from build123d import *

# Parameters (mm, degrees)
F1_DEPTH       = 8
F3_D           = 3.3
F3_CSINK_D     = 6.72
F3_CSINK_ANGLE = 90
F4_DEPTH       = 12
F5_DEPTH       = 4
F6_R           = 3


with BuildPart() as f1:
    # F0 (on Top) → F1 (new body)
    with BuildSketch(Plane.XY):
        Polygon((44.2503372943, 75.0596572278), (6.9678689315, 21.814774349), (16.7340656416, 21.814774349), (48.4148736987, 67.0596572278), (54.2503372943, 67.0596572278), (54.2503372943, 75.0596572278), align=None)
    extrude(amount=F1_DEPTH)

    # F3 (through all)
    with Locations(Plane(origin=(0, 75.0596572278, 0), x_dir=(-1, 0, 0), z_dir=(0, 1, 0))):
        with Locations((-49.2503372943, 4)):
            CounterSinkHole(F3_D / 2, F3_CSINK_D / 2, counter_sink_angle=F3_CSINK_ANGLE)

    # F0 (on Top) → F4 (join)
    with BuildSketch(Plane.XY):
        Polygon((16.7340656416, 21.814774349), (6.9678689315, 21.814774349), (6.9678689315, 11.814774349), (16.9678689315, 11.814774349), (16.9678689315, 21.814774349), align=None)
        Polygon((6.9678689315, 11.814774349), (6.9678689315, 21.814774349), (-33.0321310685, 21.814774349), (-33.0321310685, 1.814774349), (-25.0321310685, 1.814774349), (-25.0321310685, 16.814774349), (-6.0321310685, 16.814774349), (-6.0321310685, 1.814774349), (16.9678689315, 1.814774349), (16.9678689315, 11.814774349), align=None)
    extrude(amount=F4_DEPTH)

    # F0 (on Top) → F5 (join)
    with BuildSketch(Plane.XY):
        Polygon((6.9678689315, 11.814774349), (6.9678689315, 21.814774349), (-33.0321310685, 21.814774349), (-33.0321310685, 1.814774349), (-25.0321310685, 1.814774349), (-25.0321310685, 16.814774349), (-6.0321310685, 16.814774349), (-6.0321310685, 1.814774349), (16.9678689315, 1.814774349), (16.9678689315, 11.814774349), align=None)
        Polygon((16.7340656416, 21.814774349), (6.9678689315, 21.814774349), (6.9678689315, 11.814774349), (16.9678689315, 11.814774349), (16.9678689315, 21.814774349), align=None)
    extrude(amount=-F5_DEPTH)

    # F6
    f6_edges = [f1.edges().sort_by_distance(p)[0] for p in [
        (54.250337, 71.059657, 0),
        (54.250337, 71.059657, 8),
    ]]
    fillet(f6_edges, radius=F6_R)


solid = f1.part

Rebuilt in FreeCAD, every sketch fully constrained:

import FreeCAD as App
import Part
import Sketcher
from FreeCAD import Vector
Q = App.Units.Quantity


def edges_at(feature, points):
    """Names of the edges that pass closest to the given points."""
    edges = feature.Shape.Edges
    near = lambda p: min(range(len(edges)), key=lambda i: edges[i].distToShape(Part.Vertex(*p))[0])
    return sorted({f"Edge{near(p) + 1}" for p in points})

doc = App.newDocument("Part")
body = doc.addObject("PartDesign::Body", "Body")

# Sketch on XY plane
sketch1 = body.newObject("Sketcher::SketchObject", "Sketch")
sketch1.AttachmentSupport = (doc.getObject("XY_Plane"), [""])
sketch1.MapMode = "FlatFace"
sketch1.addGeometry([
    Part.LineSegment(Vector(44, 75, 0), Vector(7, 22, 0)),  # 0
    Part.LineSegment(Vector(7, 22, 0), Vector(17, 22, 0)),  # 1
    Part.LineSegment(Vector(17, 22, 0), Vector(48, 67, 0)),  # 2
    Part.LineSegment(Vector(48, 67, 0), Vector(54, 67, 0)),  # 3
    Part.LineSegment(Vector(54, 67, 0), Vector(54, 75, 0)),  # 4
    Part.LineSegment(Vector(54, 75, 0), Vector(44, 75, 0)),  # 5
], False)
sketch1.addConstraint([
    Sketcher.Constraint("Coincident", 0, 2, 1, 1),
    Sketcher.Constraint("Coincident", 1, 2, 2, 1),
    Sketcher.Constraint("Coincident", 2, 2, 3, 1),
    Sketcher.Constraint("Coincident", 3, 2, 4, 1),
    Sketcher.Constraint("Coincident", 4, 2, 5, 1),
    Sketcher.Constraint("Coincident", 5, 2, 0, 1),
    Sketcher.Constraint("Horizontal", 1),
    Sketcher.Constraint("Horizontal", 3),
    Sketcher.Constraint("Vertical", 4),
    Sketcher.Constraint("Horizontal", 5),
    Sketcher.Constraint("Parallel", 0, 2),
    Sketcher.Constraint("DistanceX", 5, 2, 5, 1, Q("10 mm")),
    Sketcher.Constraint("DistanceY", 4, 1, 4, 2, Q("8 mm")),
    Sketcher.Constraint("Angle", 0, Q("-125 deg")),
    Sketcher.Constraint("Distance", 0, Q("65 mm")),
    Sketcher.Constraint("DistanceX", 1, 1, 1, 2, Q("9.766197 mm")),
    Sketcher.Constraint("DistanceX", -1, 1, 0, 2, Q("6.967869 mm")),
    Sketcher.Constraint("DistanceY", -1, 1, 0, 2, Q("21.814774 mm")),
])
pad1 = body.newObject("PartDesign::Pad", "Pad")
pad1.Profile = sketch1
pad1.Length = 8

# Sketch on XZ plane
sketch2 = body.newObject("Sketcher::SketchObject", "Sketch001")
sketch2.AttachmentSupport = (doc.getObject("XZ_Plane"), [""])
sketch2.MapMode = "FlatFace"
sketch2.AttachmentOffset = App.Placement(Vector(0, 0, -75.059657), App.Rotation())
sketch2.addGeometry(Part.Circle(Vector(49.3, 4, 0), Vector(0, 0, 1), 1.6), False)
sketch2.addConstraint([
    Sketcher.Constraint("Diameter", 0, Q("3.3 mm")),
    Sketcher.Constraint("DistanceY", -1, 1, 0, 3, Q("4 mm")),
    Sketcher.Constraint("DistanceX", -1, 1, 0, 3, Q("49.250337 mm")),
])
doc.recompute()
hole = body.newObject("PartDesign::Hole", "Hole")
hole.Profile = sketch2
hole.ThreadType = "None"
hole.Diameter = 3.3
hole.DepthType = "ThroughAll"
hole.HoleCutType = "Countersink"
hole.HoleCutDiameter = 6.72
hole.HoleCutCountersinkAngle = 90
hole.Reversed = True

# Sketch on XY plane
sketch3 = body.newObject("Sketcher::SketchObject", "Sketch002")
sketch3.AttachmentSupport = (doc.getObject("XY_Plane"), [""])
sketch3.MapMode = "FlatFace"
sketch3.addGeometry([
    Part.LineSegment(Vector(17, 22, 0), Vector(-33, 22, 0)),  # 0
    Part.LineSegment(Vector(-33, 22, 0), Vector(-33, 2, 0)),  # 1
    Part.LineSegment(Vector(-33, 2, 0), Vector(-25, 2, 0)),  # 2
    Part.LineSegment(Vector(-25, 2, 0), Vector(-25, 17, 0)),  # 3
    Part.LineSegment(Vector(-25, 17, 0), Vector(-6, 17, 0)),  # 4
    Part.LineSegment(Vector(-6, 17, 0), Vector(-6, 2, 0)),  # 5
    Part.LineSegment(Vector(-6, 2, 0), Vector(17, 2, 0)),  # 6
    Part.LineSegment(Vector(17, 2, 0), Vector(17, 22, 0)),  # 7
], False)
sketch3.addConstraint([
    Sketcher.Constraint("Coincident", 0, 2, 1, 1),
    Sketcher.Constraint("Coincident", 1, 2, 2, 1),
    Sketcher.Constraint("Coincident", 2, 2, 3, 1),
    Sketcher.Constraint("Coincident", 3, 2, 4, 1),
    Sketcher.Constraint("Coincident", 4, 2, 5, 1),
    Sketcher.Constraint("Coincident", 5, 2, 6, 1),
    Sketcher.Constraint("Coincident", 6, 2, 7, 1),
    Sketcher.Constraint("Coincident", 7, 2, 0, 1),
    Sketcher.Constraint("Horizontal", 0),
    Sketcher.Constraint("Vertical", 1),
    Sketcher.Constraint("Horizontal", 2),
    Sketcher.Constraint("Vertical", 3),
    Sketcher.Constraint("Horizontal", 4),
    Sketcher.Constraint("Vertical", 5),
    Sketcher.Constraint("Horizontal", 6),
    Sketcher.Constraint("Vertical", 7),
    Sketcher.Constraint("Horizontal", 2, 2, 5, 2),
    Sketcher.Constraint("DistanceX", 0, 2, 0, 1, Q("50 mm")),
    Sketcher.Constraint("DistanceX", 2, 1, 2, 2, Q("8 mm")),
    Sketcher.Constraint("DistanceX", 4, 1, 4, 2, Q("19 mm")),
    Sketcher.Constraint("DistanceY", 1, 2, 1, 1, Q("20 mm")),
    Sketcher.Constraint("DistanceY", 3, 1, 3, 2, Q("15 mm")),
    Sketcher.Constraint("DistanceX", 0, 2, -1, 1, Q("33.032131 mm")),
    Sketcher.Constraint("DistanceY", -1, 1, 0, 2, Q("21.814774 mm")),
])
pad2 = body.newObject("PartDesign::Pad", "Pad001")
pad2.Profile = sketch3
pad2.Length = 12

# Sketch on XY plane
sketch4 = body.newObject("Sketcher::SketchObject", "Sketch003")
sketch4.AttachmentSupport = (doc.getObject("XY_Plane"), [""])
sketch4.MapMode = "FlatFace"
sketch4.addGeometry([
    Part.LineSegment(Vector(-33, 22, 0), Vector(-33, 2, 0)),  # 0
    Part.LineSegment(Vector(-33, 2, 0), Vector(-25, 2, 0)),  # 1
    Part.LineSegment(Vector(-25, 2, 0), Vector(-25, 17, 0)),  # 2
    Part.LineSegment(Vector(-25, 17, 0), Vector(-6, 17, 0)),  # 3
    Part.LineSegment(Vector(-6, 17, 0), Vector(-6, 2, 0)),  # 4
    Part.LineSegment(Vector(-6, 2, 0), Vector(17, 2, 0)),  # 5
    Part.LineSegment(Vector(17, 2, 0), Vector(17, 22, 0)),  # 6
    Part.LineSegment(Vector(17, 22, 0), Vector(-33, 22, 0)),  # 7
], False)
sketch4.addConstraint([
    Sketcher.Constraint("Coincident", 0, 2, 1, 1),
    Sketcher.Constraint("Coincident", 1, 2, 2, 1),
    Sketcher.Constraint("Coincident", 2, 2, 3, 1),
    Sketcher.Constraint("Coincident", 3, 2, 4, 1),
    Sketcher.Constraint("Coincident", 4, 2, 5, 1),
    Sketcher.Constraint("Coincident", 5, 2, 6, 1),
    Sketcher.Constraint("Coincident", 6, 2, 7, 1),
    Sketcher.Constraint("Coincident", 7, 2, 0, 1),
    Sketcher.Constraint("Vertical", 0),
    Sketcher.Constraint("Horizontal", 1),
    Sketcher.Constraint("Vertical", 2),
    Sketcher.Constraint("Horizontal", 3),
    Sketcher.Constraint("Vertical", 4),
    Sketcher.Constraint("Horizontal", 5),
    Sketcher.Constraint("Vertical", 6),
    Sketcher.Constraint("Horizontal", 7),
    Sketcher.Constraint("Horizontal", 1, 2, 4, 2),
    Sketcher.Constraint("DistanceX", 1, 1, 1, 2, Q("8 mm")),
    Sketcher.Constraint("DistanceX", 3, 1, 3, 2, Q("19 mm")),
    Sketcher.Constraint("DistanceX", 5, 1, 5, 2, Q("23 mm")),
    Sketcher.Constraint("DistanceY", 0, 2, 0, 1, Q("20 mm")),
    Sketcher.Constraint("DistanceY", 2, 1, 2, 2, Q("15 mm")),
    Sketcher.Constraint("DistanceX", 0, 2, -1, 1, Q("33.032131 mm")),
    Sketcher.Constraint("DistanceY", -1, 1, 0, 2, Q("1.814774 mm")),
])
pad3 = body.newObject("PartDesign::Pad", "Pad002")
pad3.Profile = sketch4
pad3.Length = 4
pad3.Reversed = True
doc.recompute()

fillet = body.newObject("PartDesign::Fillet", "Fillet")
fillet.Base = (pad3, edges_at(pad3, [(54.25, 71.06, 0), (54.25, 71.06, 8)]))
fillet.Radius = 3

doc.recompute()
